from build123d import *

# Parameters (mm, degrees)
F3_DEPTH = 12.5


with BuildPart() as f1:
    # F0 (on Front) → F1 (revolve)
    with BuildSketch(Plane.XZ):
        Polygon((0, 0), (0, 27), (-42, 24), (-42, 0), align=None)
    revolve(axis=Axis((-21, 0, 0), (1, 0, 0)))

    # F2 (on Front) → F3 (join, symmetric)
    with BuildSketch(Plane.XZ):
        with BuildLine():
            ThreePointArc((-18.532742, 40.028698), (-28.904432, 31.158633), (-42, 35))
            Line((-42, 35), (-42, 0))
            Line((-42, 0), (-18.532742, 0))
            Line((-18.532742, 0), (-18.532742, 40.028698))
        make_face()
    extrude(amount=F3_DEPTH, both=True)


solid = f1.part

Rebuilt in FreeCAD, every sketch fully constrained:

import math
import FreeCAD as App
import Part
import Sketcher
from FreeCAD import Vector

doc = App.newDocument("Part")
params = doc.addObject("Spreadsheet::Sheet", "Params")
for row, (alias, value) in enumerate([
    ("sketch1_width", "42 mm"),
    ("sketch1_height", "27 mm"),
    ("sketch1_height2", "24 mm"),
    ("revolution_angle", "360 deg"),
    ("sketch2_height", "35 mm"),
    ("pad1_length", "25 mm"),
], start=1):
    params.set(f"A{row}", alias)
    params.set(f"B{row}", "=" + value)
    params.setAlias(f"B{row}", alias)

body = doc.addObject("PartDesign::Body", "Body")

sketch1 = doc.addObject("Sketcher::SketchObject", "Sketch")
body.addObject(sketch1)
sketch1.AttachmentSupport = (doc.XZ_Plane, [""])
sketch1.MapMode = "FlatFace"
sketch1.addGeometry([
    Part.LineSegment(Vector(0, 0, 0), Vector(0, 27, 0)),
    Part.LineSegment(Vector(0, 27, 0), Vector(-42, 24, 0)),
    Part.LineSegment(Vector(-42, 24, 0), Vector(-42, 0, 0)),
    Part.LineSegment(Vector(-42, 0, 0), Vector(0, 0, 0)),
], False)
sketch1.addConstraint([
    Sketcher.Constraint("Coincident", 0, 2, 1, 1),
    Sketcher.Constraint("Coincident", 1, 2, 2, 1),
    Sketcher.Constraint("Coincident", 2, 2, 3, 1),
    Sketcher.Constraint("Coincident", 3, 2, 0, 1),
    Sketcher.Constraint("Vertical", 0),
    Sketcher.Constraint("Vertical", 2),
    Sketcher.Constraint("Horizontal", 3),
    Sketcher.Constraint("Coincident", 3, 2, -1, 1),
    Sketcher.Constraint("DistanceX", 3, 1, 3, 2, 42.0),
    Sketcher.Constraint("DistanceY", 0, 1, 0, 2, 27.0),
    Sketcher.Constraint("DistanceY", 2, 2, 2, 1, 24.0),
])
sketch1.setExpression("Constraints[8]", "Params.sketch1_width")
sketch1.setExpression("Constraints[9]", "Params.sketch1_height")
sketch1.setExpression("Constraints[10]", "Params.sketch1_height2")
revolution = doc.addObject("PartDesign::Revolution", "Revolution")
body.addObject(revolution)
revolution.Profile = sketch1
revolution.ReferenceAxis = (sketch1, ["H_Axis"])
revolution.setExpression("Angle", "Params.revolution_angle")

sketch2 = doc.addObject("Sketcher::SketchObject", "Sketch001")
body.addObject(sketch2)
sketch2.AttachmentSupport = (doc.XZ_Plane, [""])
sketch2.MapMode = "FlatFace"
sketch2.addGeometry([
    Part.ArcOfCircle(Part.Circle(Vector(-32, 45, 0), Vector(0, 0, 1), 14), math.radians(-135), math.radians(-21)),
    Part.LineSegment(Vector(-42, 35, 0), Vector(-42, 0, 0)),
    Part.LineSegment(Vector(-42, 0, 0), Vector(-19, 0, 0)),
    Part.LineSegment(Vector(-19, 0, 0), Vector(-19, 40, 0)),
], False)
sketch2.addConstraint([
    Sketcher.Constraint("Coincident", 0, 1, 1, 1),
    Sketcher.Constraint("Coincident", 1, 2, 2, 1),
    Sketcher.Constraint("Coincident", 2, 2, 3, 1),
    Sketcher.Constraint("Coincident", 3, 2, 0, 2),
    Sketcher.Constraint("Vertical", 1),
    Sketcher.Constraint("Horizontal", 2),
    Sketcher.Constraint("Vertical", 3),
    Sketcher.Constraint("PointOnObject", 1, 2, -1),
    Sketcher.Constraint("DistanceY", 1, 2, 1, 1, 35.0),
    Sketcher.Constraint("DistanceX", 0, 1, -1, 1, 42.0),
    Sketcher.Constraint("Radius", 0, 14.326923),
    Sketcher.Constraint("DistanceX", 2, 1, 2, 2, 23.467258),
    Sketcher.Constraint("DistanceY", 3, 1, 3, 2, 40.028698),
])
sketch2.setExpression("Constraints[8]", "Params.sketch2_height")
pad1 = doc.addObject("PartDesign::Pad", "Pad")
body.addObject(pad1)
pad1.Profile = sketch2
pad1.setExpression("Length", "Params.pad1_length")
pad1.Midplane = True

doc.recompute()
